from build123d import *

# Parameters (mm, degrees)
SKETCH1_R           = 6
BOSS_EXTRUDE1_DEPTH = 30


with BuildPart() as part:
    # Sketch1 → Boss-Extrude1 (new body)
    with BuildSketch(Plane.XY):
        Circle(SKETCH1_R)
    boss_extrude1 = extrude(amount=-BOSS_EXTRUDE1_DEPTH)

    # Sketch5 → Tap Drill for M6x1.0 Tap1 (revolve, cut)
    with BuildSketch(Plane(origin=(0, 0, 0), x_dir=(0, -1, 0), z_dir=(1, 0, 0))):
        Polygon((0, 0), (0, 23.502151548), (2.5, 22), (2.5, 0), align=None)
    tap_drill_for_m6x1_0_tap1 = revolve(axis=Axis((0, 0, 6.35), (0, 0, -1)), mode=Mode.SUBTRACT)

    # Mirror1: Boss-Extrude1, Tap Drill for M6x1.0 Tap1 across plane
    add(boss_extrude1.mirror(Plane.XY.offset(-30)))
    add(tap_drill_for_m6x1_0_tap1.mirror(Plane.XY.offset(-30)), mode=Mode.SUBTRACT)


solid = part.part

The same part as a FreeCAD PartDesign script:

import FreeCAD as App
import Part
import Sketcher
Q = App.Units.Quantity

doc = App.newDocument("Part")
body = doc.addObject("PartDesign::Body", "Body")

sketch1 = doc.addObject("Sketcher::SketchObject", "Sketch")
body.addObject(sketch1)
sketch1.AttachmentSupport = (doc.XY_Plane, [""])
sketch1.MapMode = "FlatFace"
sketch1.addGeometry(Part.Circle(App.Vector(0, 0, 0), App.Vector(0, 0, 1), 6), False)
sketch1.addConstraint(Sketcher.Constraint("Coincident", 0, 3, -1, 1))
sketch1.addConstraint(Sketcher.Constraint("Diameter", 0, Q("12 mm")))
pad1 = doc.addObject("PartDesign::Pad", "Pad")
body.addObject(pad1)
pad1.Profile = sketch1
pad1.Length = 30
pad1.Reversed = True

sketch2 = doc.addObject("Sketcher::SketchObject", "Sketch001")
body.addObject(sketch2)
sketch2.AttachmentSupport = (doc.YZ_Plane, [""])
sketch2.MapMode = "FlatFace"
sketch2.addGeometry(Part.LineSegment(App.Vector(0, -23.5, 0), App.Vector(0, 0, 0)), False)
sketch2.addGeometry(Part.LineSegment(App.Vector(0, 0, 0), App.Vector(-2.5, 0, 0)), False)
sketch2.addGeometry(Part.LineSegment(App.Vector(-2.5, 0, 0), App.Vector(-2.5, -22, 0)), False)
sketch2.addGeometry(Part.LineSegment(App.Vector(-2.5, -22, 0), App.Vector(0, -23.5, 0)), False)
sketch2.addConstraint(Sketcher.Constraint("Coincident", 0, 2, 1, 1))
sketch2.addConstraint(Sketcher.Constraint("Coincident", 1, 2, 2, 1))
sketch2.addConstraint(Sketcher.Constraint("Coincident", 2, 2, 3, 1))
sketch2.addConstraint(Sketcher.Constraint("Coincident", 3, 2, 0, 1))
sketch2.addConstraint(Sketcher.Constraint("Vertical", 0))
sketch2.addConstraint(Sketcher.Constraint("Horizontal", 1))
sketch2.addConstraint(Sketcher.Constraint("Vertical", 2))
sketch2.addConstraint(Sketcher.Constraint("Coincident", 0, 2, -1, 1))
sketch2.addConstraint(Sketcher.Constraint("DistanceY", 2, 2, 2, 1, Q("22 mm")))
sketch2.addConstraint(Sketcher.Constraint("Angle", 3, Q("-31 deg")))
sketch2.addConstraint(Sketcher.Constraint("DistanceX", 1, 2, 1, 1, Q("2.5 mm")))
groove = doc.addObject("PartDesign::Groove", "Groove")
body.addObject(groove)
groove.Profile = sketch2
groove.ReferenceAxis = (sketch2, ["V_Axis"])
groove.Angle = 360
doc.recompute()

datumplane = doc.addObject("PartDesign::Plane", "DatumPlane")
body.addObject(datumplane)
datumplane.AttachmentSupport = (doc.XY_Plane, [""])
datumplane.MapMode = "FlatFace"
datumplane.AttachmentOffset = App.Placement(App.Vector(0, 0, -30), App.Rotation())
mirrored = doc.addObject("PartDesign::Mirrored", "Mirrored")
body.addObject(mirrored)
mirrored.Originals = [pad1, groove]
mirrored.MirrorPlane = (datumplane, [""])
body.Tip = mirrored

doc.recompute()
